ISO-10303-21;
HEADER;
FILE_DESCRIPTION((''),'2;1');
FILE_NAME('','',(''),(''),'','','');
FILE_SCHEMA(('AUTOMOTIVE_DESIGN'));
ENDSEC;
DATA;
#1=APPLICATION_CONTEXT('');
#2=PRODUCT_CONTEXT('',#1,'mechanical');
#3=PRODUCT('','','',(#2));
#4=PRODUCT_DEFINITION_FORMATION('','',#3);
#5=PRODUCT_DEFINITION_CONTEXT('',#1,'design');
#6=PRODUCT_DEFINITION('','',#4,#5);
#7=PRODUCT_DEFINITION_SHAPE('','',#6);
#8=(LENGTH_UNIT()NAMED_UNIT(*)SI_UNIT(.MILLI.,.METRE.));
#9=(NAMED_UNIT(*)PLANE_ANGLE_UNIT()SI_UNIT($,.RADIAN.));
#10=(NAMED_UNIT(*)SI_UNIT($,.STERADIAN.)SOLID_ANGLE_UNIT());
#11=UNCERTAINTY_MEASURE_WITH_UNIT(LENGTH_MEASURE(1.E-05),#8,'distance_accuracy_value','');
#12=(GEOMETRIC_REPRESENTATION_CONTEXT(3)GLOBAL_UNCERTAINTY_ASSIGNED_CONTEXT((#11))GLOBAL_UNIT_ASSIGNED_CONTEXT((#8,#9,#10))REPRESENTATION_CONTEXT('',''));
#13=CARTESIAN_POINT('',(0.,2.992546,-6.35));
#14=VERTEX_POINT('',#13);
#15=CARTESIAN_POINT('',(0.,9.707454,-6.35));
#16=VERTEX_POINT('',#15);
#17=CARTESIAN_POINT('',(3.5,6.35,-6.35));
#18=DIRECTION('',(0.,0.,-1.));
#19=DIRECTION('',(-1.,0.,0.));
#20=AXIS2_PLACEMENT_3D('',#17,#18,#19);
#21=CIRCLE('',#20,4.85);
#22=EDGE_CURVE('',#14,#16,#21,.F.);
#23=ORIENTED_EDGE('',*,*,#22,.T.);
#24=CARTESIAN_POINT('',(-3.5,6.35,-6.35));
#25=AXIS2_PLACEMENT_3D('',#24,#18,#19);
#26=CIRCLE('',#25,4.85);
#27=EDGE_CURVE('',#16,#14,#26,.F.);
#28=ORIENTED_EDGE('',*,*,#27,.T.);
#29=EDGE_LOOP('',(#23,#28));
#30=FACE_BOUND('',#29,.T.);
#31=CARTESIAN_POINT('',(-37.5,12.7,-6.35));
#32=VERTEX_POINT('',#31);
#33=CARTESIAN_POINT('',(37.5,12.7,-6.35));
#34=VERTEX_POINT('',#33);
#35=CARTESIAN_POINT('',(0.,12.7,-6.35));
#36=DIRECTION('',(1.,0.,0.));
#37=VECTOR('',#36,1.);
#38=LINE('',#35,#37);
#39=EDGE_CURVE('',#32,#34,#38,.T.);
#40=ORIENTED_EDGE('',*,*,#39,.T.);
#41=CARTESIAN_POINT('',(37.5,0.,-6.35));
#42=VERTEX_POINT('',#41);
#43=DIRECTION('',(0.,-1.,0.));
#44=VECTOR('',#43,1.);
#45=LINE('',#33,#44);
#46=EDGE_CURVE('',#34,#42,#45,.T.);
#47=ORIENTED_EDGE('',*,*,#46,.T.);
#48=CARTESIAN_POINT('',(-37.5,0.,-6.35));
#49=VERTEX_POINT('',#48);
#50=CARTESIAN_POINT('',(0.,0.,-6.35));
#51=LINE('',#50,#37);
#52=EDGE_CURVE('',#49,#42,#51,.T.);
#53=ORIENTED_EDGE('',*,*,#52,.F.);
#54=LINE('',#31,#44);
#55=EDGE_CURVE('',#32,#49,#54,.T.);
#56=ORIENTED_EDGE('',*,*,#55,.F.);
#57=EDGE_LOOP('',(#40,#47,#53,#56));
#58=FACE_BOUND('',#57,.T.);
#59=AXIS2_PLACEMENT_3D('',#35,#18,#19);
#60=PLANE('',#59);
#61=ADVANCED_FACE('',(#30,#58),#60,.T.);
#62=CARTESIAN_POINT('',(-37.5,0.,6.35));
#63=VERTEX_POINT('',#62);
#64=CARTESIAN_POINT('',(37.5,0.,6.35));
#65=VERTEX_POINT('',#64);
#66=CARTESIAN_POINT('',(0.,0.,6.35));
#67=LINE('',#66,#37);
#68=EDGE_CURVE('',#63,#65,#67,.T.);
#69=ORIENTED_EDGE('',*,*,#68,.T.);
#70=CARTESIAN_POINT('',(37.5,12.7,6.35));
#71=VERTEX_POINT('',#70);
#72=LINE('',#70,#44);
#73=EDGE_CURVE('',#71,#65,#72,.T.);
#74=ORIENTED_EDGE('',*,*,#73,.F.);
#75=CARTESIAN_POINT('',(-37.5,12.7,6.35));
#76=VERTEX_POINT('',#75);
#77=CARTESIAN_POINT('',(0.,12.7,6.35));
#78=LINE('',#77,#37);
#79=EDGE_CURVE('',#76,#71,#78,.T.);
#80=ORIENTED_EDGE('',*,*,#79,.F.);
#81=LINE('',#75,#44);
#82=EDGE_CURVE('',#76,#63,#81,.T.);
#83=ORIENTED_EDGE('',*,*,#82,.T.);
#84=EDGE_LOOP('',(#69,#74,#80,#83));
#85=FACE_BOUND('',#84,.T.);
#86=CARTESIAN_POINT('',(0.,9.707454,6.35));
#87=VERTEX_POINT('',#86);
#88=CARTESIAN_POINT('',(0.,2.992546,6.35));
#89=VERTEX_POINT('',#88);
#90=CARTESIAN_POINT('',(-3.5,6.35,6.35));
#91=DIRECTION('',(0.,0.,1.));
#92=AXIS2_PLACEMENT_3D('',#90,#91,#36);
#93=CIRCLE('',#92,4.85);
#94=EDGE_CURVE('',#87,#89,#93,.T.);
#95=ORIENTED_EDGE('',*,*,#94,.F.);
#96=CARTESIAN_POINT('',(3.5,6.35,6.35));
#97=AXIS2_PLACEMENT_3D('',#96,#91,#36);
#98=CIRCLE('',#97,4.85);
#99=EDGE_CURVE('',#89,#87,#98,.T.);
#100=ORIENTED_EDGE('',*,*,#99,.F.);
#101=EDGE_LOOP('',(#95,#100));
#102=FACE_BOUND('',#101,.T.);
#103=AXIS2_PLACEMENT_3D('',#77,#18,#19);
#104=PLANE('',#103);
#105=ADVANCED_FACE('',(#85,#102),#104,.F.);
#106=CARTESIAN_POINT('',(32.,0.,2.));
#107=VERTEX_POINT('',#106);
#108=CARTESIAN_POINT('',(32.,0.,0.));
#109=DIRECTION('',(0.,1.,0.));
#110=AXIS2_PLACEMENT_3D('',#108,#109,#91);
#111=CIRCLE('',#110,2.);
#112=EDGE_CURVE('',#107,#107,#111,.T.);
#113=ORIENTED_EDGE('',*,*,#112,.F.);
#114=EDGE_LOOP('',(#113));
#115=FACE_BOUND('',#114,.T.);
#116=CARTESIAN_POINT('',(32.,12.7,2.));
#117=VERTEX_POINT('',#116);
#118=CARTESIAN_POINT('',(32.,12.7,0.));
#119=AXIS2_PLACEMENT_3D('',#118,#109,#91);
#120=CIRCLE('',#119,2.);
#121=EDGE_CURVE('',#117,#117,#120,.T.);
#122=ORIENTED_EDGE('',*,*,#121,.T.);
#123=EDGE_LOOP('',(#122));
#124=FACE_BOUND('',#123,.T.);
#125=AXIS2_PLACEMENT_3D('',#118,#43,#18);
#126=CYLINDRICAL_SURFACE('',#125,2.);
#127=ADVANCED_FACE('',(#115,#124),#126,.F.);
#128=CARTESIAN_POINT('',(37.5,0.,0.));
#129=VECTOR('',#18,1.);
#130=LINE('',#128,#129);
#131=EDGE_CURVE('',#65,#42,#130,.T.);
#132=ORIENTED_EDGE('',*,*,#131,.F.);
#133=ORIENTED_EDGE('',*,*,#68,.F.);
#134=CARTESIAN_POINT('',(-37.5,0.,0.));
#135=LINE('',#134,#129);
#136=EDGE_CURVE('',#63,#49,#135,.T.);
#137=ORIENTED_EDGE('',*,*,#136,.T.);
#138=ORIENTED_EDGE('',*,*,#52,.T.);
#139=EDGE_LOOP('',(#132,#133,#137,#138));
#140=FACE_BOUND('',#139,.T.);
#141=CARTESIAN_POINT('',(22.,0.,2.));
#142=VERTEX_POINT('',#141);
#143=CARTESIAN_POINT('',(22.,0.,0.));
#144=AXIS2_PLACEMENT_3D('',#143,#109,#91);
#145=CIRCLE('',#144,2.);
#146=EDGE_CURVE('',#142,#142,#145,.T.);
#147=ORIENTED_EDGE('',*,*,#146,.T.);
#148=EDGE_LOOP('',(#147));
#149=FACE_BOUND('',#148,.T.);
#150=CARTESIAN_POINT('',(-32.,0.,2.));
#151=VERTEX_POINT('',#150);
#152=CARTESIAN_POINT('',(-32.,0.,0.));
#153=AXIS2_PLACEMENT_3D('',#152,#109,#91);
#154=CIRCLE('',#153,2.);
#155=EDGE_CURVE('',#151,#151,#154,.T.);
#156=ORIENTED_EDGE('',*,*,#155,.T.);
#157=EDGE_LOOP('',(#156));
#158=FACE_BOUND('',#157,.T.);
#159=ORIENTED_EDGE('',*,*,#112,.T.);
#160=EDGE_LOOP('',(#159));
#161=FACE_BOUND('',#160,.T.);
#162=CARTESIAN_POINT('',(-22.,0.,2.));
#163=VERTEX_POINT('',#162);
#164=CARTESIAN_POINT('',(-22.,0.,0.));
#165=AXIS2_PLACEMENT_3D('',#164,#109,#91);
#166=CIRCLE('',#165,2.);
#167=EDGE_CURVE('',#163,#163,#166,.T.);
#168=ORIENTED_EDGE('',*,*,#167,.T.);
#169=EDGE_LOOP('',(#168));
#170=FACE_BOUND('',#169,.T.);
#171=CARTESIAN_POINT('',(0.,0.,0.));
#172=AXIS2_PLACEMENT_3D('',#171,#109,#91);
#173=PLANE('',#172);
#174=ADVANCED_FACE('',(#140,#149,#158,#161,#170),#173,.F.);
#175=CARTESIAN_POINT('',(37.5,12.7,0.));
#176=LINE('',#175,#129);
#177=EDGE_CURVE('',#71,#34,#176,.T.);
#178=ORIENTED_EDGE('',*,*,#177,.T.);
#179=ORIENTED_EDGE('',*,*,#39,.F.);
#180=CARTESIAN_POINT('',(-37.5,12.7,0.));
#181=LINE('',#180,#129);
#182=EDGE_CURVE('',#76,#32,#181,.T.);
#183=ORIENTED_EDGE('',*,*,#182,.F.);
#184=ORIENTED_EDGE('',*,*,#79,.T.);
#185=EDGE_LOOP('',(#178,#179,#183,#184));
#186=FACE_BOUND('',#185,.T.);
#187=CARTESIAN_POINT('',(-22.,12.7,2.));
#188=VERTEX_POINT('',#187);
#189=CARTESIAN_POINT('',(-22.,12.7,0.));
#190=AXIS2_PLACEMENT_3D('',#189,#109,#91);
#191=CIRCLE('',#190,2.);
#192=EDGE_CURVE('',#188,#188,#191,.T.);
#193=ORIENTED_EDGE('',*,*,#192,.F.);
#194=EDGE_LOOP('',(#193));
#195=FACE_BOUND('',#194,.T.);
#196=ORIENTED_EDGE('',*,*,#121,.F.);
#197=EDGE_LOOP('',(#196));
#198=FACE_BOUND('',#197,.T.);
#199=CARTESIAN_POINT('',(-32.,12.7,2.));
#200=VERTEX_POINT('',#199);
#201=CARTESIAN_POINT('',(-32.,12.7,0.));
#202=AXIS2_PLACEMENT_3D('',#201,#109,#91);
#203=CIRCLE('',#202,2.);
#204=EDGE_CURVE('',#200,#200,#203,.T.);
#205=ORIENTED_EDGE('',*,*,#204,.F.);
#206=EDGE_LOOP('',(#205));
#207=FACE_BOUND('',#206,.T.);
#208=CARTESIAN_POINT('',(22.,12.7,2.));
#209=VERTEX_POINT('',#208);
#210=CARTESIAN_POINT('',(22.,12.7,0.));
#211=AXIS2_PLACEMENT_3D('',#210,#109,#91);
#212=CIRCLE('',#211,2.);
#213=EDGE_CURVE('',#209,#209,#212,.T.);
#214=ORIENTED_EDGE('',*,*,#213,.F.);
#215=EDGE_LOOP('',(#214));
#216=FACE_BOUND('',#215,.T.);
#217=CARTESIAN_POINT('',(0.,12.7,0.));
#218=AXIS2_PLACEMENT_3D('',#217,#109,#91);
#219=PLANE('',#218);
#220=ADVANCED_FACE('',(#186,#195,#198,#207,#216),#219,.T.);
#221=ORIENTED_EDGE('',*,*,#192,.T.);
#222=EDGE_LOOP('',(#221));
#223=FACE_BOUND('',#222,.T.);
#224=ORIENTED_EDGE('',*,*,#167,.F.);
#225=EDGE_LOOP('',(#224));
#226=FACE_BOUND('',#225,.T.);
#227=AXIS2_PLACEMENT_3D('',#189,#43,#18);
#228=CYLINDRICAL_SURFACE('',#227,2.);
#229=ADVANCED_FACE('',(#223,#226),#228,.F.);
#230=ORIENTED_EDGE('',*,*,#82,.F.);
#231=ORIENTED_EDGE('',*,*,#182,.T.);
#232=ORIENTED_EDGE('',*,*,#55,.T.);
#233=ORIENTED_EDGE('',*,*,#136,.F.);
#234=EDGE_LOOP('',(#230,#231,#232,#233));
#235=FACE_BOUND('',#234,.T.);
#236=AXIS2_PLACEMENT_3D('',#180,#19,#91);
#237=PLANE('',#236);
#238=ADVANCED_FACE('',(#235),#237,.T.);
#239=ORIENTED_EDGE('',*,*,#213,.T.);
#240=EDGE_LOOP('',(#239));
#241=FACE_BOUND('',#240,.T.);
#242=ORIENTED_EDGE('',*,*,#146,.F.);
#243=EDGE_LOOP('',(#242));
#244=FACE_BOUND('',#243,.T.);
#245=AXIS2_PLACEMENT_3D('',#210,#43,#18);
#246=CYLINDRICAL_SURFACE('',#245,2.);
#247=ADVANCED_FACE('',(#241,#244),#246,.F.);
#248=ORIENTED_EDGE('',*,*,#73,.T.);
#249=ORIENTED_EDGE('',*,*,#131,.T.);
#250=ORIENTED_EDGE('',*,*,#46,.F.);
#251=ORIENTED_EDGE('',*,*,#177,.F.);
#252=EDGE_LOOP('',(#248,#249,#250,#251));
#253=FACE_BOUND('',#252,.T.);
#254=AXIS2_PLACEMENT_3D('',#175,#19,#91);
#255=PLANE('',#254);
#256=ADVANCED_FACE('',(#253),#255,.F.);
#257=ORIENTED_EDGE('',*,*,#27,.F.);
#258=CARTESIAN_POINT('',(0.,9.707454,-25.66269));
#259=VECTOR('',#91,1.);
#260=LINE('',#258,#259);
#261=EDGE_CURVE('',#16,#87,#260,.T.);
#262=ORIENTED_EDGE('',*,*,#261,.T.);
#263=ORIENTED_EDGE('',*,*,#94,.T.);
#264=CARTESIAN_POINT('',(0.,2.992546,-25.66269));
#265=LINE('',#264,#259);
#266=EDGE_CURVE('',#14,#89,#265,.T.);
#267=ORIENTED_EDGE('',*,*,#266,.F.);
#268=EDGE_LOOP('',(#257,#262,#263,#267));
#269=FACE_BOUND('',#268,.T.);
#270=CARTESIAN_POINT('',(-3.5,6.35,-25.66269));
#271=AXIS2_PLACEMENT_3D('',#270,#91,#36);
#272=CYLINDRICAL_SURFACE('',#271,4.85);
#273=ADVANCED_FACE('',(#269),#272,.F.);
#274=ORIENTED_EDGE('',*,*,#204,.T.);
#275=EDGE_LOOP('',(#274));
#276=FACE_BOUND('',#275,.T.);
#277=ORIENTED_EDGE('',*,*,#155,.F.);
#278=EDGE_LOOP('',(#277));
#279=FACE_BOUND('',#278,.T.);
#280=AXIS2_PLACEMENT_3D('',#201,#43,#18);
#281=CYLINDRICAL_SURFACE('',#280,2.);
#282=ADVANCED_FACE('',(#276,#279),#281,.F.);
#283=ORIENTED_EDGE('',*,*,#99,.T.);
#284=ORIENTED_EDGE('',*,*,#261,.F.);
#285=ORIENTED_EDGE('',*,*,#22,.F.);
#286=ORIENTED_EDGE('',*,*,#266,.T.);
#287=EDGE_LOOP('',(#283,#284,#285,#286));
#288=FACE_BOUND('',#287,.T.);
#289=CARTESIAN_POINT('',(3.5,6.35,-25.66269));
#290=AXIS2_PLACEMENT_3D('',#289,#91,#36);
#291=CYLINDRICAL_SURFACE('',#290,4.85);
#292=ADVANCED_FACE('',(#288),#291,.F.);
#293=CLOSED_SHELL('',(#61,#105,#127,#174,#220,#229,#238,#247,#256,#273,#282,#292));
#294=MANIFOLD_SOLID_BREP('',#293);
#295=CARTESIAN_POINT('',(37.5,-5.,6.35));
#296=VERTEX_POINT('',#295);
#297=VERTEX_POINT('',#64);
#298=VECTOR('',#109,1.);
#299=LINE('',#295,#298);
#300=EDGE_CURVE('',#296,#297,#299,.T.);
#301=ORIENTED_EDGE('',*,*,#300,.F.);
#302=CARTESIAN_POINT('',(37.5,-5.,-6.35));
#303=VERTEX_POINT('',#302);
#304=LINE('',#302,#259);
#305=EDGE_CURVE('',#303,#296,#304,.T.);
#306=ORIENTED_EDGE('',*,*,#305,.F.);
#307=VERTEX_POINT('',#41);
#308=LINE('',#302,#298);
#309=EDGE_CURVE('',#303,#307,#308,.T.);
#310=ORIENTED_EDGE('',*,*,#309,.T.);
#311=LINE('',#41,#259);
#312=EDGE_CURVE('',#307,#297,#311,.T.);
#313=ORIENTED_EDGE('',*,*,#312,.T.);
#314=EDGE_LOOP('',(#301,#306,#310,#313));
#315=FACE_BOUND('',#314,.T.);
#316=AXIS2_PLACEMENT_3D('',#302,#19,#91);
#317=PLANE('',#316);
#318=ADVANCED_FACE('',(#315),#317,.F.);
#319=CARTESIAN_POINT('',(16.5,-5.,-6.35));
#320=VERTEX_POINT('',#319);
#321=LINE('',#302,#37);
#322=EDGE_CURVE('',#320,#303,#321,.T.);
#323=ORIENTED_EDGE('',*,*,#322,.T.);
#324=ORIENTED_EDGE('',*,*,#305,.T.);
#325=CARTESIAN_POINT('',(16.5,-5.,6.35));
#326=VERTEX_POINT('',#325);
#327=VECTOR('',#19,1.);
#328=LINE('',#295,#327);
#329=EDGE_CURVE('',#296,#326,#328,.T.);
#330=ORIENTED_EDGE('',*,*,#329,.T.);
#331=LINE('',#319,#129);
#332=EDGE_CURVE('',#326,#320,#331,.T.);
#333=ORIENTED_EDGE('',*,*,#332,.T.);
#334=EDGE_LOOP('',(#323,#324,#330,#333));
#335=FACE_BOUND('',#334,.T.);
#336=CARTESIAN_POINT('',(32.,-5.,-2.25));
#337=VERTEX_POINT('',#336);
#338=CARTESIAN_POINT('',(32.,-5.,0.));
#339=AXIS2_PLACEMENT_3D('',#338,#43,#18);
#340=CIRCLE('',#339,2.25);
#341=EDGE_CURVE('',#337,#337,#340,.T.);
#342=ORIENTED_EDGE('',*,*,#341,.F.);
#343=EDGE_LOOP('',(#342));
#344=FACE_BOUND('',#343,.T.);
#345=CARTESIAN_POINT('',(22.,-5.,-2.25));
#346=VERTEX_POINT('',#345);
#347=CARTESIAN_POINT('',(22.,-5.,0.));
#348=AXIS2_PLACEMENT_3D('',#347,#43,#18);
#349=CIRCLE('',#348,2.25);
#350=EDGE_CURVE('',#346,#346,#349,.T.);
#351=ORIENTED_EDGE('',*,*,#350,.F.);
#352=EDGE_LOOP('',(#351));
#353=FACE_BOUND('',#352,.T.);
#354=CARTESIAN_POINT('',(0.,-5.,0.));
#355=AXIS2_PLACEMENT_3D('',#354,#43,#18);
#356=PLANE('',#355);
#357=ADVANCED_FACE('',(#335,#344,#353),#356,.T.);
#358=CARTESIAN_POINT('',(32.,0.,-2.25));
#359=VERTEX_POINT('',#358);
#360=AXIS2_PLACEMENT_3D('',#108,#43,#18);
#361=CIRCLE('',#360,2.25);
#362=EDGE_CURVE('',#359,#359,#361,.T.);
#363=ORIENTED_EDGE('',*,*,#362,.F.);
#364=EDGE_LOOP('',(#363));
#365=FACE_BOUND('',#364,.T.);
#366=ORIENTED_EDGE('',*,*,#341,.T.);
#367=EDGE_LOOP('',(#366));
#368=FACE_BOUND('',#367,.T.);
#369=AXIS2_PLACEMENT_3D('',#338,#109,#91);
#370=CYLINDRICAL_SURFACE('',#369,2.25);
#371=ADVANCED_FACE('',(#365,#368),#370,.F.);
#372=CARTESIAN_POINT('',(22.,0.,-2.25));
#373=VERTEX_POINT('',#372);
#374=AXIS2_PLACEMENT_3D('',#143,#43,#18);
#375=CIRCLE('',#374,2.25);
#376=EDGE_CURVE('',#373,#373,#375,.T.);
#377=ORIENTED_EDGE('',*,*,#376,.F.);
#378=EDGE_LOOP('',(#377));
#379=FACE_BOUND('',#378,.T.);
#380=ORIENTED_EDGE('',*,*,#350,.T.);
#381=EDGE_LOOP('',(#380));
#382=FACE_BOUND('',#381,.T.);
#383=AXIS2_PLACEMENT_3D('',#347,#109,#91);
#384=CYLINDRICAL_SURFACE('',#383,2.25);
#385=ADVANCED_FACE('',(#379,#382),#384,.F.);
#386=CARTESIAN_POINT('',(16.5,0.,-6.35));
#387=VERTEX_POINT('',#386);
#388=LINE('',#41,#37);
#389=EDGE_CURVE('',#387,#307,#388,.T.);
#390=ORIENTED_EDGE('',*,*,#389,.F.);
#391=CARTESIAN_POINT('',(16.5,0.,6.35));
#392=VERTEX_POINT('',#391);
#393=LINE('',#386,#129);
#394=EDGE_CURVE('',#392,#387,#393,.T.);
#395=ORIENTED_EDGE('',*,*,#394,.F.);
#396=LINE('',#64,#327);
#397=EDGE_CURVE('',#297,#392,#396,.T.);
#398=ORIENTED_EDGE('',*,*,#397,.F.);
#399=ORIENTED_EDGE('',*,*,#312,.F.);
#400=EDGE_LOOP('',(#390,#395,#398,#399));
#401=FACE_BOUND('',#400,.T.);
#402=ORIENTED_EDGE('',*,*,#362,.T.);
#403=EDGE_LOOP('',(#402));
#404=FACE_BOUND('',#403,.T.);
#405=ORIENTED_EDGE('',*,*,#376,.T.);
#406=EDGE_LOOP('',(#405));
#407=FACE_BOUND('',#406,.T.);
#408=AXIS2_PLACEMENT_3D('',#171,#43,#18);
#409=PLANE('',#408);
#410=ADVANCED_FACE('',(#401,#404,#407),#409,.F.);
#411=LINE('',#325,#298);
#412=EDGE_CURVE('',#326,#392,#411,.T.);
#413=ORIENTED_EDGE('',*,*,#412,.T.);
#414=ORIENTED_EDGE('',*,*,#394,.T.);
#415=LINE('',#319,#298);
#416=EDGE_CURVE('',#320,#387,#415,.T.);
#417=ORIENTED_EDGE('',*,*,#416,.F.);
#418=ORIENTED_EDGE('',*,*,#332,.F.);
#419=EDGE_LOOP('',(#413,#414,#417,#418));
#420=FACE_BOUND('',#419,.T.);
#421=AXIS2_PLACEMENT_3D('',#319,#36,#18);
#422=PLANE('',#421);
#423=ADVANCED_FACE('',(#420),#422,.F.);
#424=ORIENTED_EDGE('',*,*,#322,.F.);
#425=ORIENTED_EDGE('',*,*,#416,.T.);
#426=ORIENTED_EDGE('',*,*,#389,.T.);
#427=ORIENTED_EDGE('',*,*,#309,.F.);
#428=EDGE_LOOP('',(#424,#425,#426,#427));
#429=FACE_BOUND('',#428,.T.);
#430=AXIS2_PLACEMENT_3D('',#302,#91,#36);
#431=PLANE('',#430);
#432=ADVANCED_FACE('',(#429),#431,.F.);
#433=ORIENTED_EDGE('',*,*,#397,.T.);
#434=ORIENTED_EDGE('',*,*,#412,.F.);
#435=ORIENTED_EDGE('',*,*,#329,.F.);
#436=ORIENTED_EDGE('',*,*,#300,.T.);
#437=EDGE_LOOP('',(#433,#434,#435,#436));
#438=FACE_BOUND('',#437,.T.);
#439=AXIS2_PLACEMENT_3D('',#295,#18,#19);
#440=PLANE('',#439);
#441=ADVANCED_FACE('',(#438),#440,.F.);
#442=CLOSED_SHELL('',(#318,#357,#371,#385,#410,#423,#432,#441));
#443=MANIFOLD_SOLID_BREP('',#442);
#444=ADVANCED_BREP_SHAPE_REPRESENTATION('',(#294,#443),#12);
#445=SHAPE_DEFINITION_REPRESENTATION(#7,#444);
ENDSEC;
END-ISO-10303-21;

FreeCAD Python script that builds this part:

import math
import FreeCAD as App
import Part
import Sketcher
Q = App.Units.Quantity

doc = App.newDocument("Part")
body = doc.addObject("PartDesign::Body", "Body")

sketch1 = body.newObject("Sketcher::SketchObject", "Sketch")
sketch1.AttachmentSupport = (doc.getObject("XZ_Plane"), [""])
sketch1.MapMode = "FlatFace"
sketch1.addGeometry([
    Part.LineSegment(App.Vector(-37.5, -6.3, 0), App.Vector(-37.5, 6.3, 0)),
    Part.LineSegment(App.Vector(-37.5, 6.3, 0), App.Vector(37.5, 6.3, 0)),
    Part.LineSegment(App.Vector(37.5, 6.3, 0), App.Vector(37.5, -6.3, 0)),
    Part.LineSegment(App.Vector(37.5, -6.3, 0), App.Vector(-37.5, -6.3, 0)),
    Part.Circle(App.Vector(-32, 0, 0), App.Vector(0, 0, 1), 2),
    Part.Circle(App.Vector(-22, 0, 0), App.Vector(0, 0, 1), 2),
    Part.Circle(App.Vector(22, 0, 0), App.Vector(0, 0, 1), 2),
    Part.Circle(App.Vector(32, 0, 0), App.Vector(0, 0, 1), 2),
], False)
sketch1.addConstraint([
    Sketcher.Constraint("Coincident", 0, 2, 1, 1),
    Sketcher.Constraint("Coincident", 1, 2, 2, 1),
    Sketcher.Constraint("Coincident", 2, 2, 3, 1),
    Sketcher.Constraint("Coincident", 3, 2, 0, 1),
    Sketcher.Constraint("Vertical", 0),
    Sketcher.Constraint("Horizontal", 1),
    Sketcher.Constraint("Vertical", 2),
    Sketcher.Constraint("Horizontal", 3),
    Sketcher.Constraint("Equal", 4, 5),
    Sketcher.Constraint("Equal", 5, 6),
    Sketcher.Constraint("Equal", 6, 7),
    Sketcher.Constraint("Symmetric", 5, 3, 6, 3, -1, 1),
    Sketcher.Constraint("Symmetric", 4, 3, 7, 3, -1, 1),
    Sketcher.Constraint("Symmetric", 0, 2, 2, 2, -1, 1),
    Sketcher.Constraint("PointOnObject", 4, 3, -1),
    Sketcher.Constraint("PointOnObject", 5, 3, -1),
    Sketcher.Constraint("Diameter", 4, Q("4 mm")),
    Sketcher.Constraint("DistanceX", 1, 1, 1, 2, Q("75 mm")),
    Sketcher.Constraint("DistanceY", 0, 1, 0, 2, Q("12.7 mm")),
    Sketcher.Constraint("DistanceX", 4, 3, -1, 1, Q("32 mm")),
    Sketcher.Constraint("DistanceX", 5, 3, -1, 1, Q("22 mm")),
])
pad1 = body.newObject("PartDesign::Pad", "Pad")
pad1.Profile = sketch1
pad1.Length = 12.7
pad1.Reversed = True

sketch2 = body.newObject("Sketcher::SketchObject", "Sketch001")
sketch2.AttachmentSupport = (doc.getObject("XY_Plane"), [""])
sketch2.MapMode = "FlatFace"
sketch2.AttachmentOffset = App.Placement(App.Vector(0, 0, 6.35), App.Rotation())
sketch2.addGeometry([
    Part.ArcOfCircle(Part.Circle(App.Vector(-3.5, 6.3, 0), App.Vector(0, 0, 1), 4.8), math.radians(44), math.radians(316)),
    Part.ArcOfCircle(Part.Circle(App.Vector(3.5, 6.3, 0), App.Vector(0, 0, 1), 4.8), math.radians(-136), math.radians(136)),
], False)
sketch2.addConstraint([
    Sketcher.Constraint("Coincident", 0, 1, 1, 2),
    Sketcher.Constraint("Coincident", 1, 1, 0, 2),
    Sketcher.Constraint("Equal", 0, 1),
    Sketcher.Constraint("Symmetric", 0, 3, 1, 3, -2),
    Sketcher.Constraint("Radius", 0, Q("4.85 mm")),
    Sketcher.Constraint("DistanceX", 0, 3, 1, 3, Q("7 mm")),
    Sketcher.Constraint("DistanceY", -1, 1, 0, 3, Q("6.35 mm")),
])
pocket1 = body.newObject("PartDesign::Pocket", "Pocket")
pocket1.Profile = sketch2
pocket1.Length = 12.7
body2 = doc.addObject("PartDesign::Body", "Body001")

sketch3 = body2.newObject("Sketcher::SketchObject", "Sketch002")
sketch3.AttachmentSupport = (doc.getObject("XZ_Plane001"), [""])
sketch3.MapMode = "FlatFace"
sketch3.addGeometry([
    Part.LineSegment(App.Vector(16.5, 6.3, 0), App.Vector(16.5, -6.3, 0)),
    Part.LineSegment(App.Vector(16.5, -6.3, 0), App.Vector(37.5, -6.3, 0)),
    Part.LineSegment(App.Vector(37.5, -6.3, 0), App.Vector(37.5, 6.3, 0)),
    Part.LineSegment(App.Vector(37.5, 6.3, 0), App.Vector(16.5, 6.3, 0)),
    Part.Circle(App.Vector(22, 0, 0), App.Vector(0, 0, 1), 2.2),
    Part.Circle(App.Vector(32, 0, 0), App.Vector(0, 0, 1), 2.2),
], False)
sketch3.addConstraint([
    Sketcher.Constraint("Coincident", 0, 2, 1, 1),
    Sketcher.Constraint("Coincident", 1, 2, 2, 1),
    Sketcher.Constraint("Coincident", 2, 2, 3, 1),
    Sketcher.Constraint("Coincident", 3, 2, 0, 1),
    Sketcher.Constraint("Vertical", 0),
    Sketcher.Constraint("Horizontal", 1),
    Sketcher.Constraint("Vertical", 2),
    Sketcher.Constraint("Horizontal", 3),
    Sketcher.Constraint("Equal", 4, 5),
    Sketcher.Constraint("PointOnObject", 4, 3, -1),
    Sketcher.Constraint("PointOnObject", 5, 3, -1),
    Sketcher.Constraint("Diameter", 4, Q("4.5 mm")),
    Sketcher.Constraint("DistanceX", 1, 1, 1, 2, Q("21 mm")),
    Sketcher.Constraint("DistanceY", 0, 2, 0, 1, Q("12.7 mm")),
    Sketcher.Constraint("DistanceX", -1, 1, 4, 3, Q("22 mm")),
    Sketcher.Constraint("DistanceX", -1, 1, 5, 3, Q("32 mm")),
    Sketcher.Constraint("DistanceX", -1, 1, 0, 2, Q("16.5 mm")),
    Sketcher.Constraint("DistanceY", 0, 2, -1, 1, Q("6.35 mm")),
])
pad2 = body2.newObject("PartDesign::Pad", "Pad001")
pad2.Profile = sketch3
pad2.Length = 5

doc.recompute()
